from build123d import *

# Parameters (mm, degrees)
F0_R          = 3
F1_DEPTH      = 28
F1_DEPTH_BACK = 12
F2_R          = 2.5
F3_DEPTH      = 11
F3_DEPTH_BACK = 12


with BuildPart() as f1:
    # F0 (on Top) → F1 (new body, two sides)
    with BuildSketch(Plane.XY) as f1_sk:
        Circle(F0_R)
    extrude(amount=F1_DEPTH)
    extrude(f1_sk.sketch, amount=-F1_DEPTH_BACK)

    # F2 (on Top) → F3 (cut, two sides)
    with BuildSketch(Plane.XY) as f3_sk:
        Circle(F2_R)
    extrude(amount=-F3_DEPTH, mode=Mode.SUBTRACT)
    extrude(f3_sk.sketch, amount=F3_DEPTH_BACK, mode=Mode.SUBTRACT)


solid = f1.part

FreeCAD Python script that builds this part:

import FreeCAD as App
import Part
import Sketcher

V = App.Vector
Q = App.Units.Quantity

doc = App.newDocument("Part")
body = doc.addObject("PartDesign::Body", "Body")

sketch1 = body.newObject("Sketcher::SketchObject", "Sketch")
sketch1.AttachmentSupport = (doc.getObject("XY_Plane"), [""])
sketch1.MapMode = "FlatFace"
sketch1.addGeometry(Part.Circle(V(0, 0, 0), V(0, 0, 1), 3), False)
sketch1.addConstraint([
    Sketcher.Constraint("Coincident", 0, 3, -1, 1),
    Sketcher.Constraint("Diameter", 0, Q("6 mm")),
])
pad1 = body.newObject("PartDesign::Pad", "Pad")
pad1.Profile = sketch1
pad1.Type = "TwoLengths"
pad1.Length = 28
pad1.Length2 = 12

sketch2 = body.newObject("Sketcher::SketchObject", "Sketch001")
sketch2.AttachmentSupport = (doc.getObject("XY_Plane"), [""])
sketch2.MapMode = "FlatFace"
sketch2.addGeometry(Part.Circle(V(0, 0, 0), V(0, 0, 1), 2.5), False)
sketch2.addConstraint([
    Sketcher.Constraint("Coincident", 0, 3, -1, 1),
    Sketcher.Constraint("Diameter", 0, Q("5 mm")),
])
pocket1 = body.newObject("PartDesign::Pocket", "Pocket")
pocket1.Profile = sketch2
pocket1.Type = "TwoLengths"
pocket1.Length = 11
pocket1.Length2 = 12

doc.recompute()
